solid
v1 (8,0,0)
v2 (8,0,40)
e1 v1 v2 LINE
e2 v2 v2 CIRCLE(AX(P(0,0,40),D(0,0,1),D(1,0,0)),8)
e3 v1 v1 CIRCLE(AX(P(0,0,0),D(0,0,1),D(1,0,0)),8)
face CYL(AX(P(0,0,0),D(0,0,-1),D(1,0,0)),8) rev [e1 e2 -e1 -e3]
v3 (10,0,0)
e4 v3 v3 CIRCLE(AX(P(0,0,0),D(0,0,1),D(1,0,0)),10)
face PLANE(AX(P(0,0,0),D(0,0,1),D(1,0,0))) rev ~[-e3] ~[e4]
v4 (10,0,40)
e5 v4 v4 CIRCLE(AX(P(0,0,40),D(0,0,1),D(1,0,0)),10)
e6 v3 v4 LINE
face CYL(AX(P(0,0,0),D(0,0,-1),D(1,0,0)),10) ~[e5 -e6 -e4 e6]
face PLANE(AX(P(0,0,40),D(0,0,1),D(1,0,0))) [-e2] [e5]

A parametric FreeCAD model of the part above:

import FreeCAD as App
import Part
import Sketcher
from FreeCAD import Vector

doc = App.newDocument("Part")
params = doc.addObject("Spreadsheet::Sheet", "Params")
for row, (alias, value) in enumerate([
    ("sketch1_diameter", "20 mm"),
    ("sketch1_diameter2", "16 mm"),
    ("pad1_length", "40 mm"),
], start=1):
    params.set(f"A{row}", alias)
    params.set(f"B{row}", "=" + value)
    params.setAlias(f"B{row}", alias)

body = doc.addObject("PartDesign::Body", "Body")

sketch1 = body.newObject("Sketcher::SketchObject", "Sketch")
sketch1.AttachmentSupport = (doc.getObject("XY_Plane"), [""])
sketch1.MapMode = "FlatFace"
sketch1.addGeometry(Part.Circle(Vector(0, 0, 0), Vector(0, 0, 1), 10), False)
sketch1.addGeometry(Part.Circle(Vector(0, 0, 0), Vector(0, 0, 1), 8), False)
sketch1.addConstraint(Sketcher.Constraint("Coincident", 0, 3, -1, 1))
sketch1.addConstraint(Sketcher.Constraint("Coincident", 1, 3, -1, 1))
sketch1.addConstraint(Sketcher.Constraint("Diameter", 0, 20.0))
sketch1.addConstraint(Sketcher.Constraint("Diameter", 1, 16.0))
sketch1.setExpression("Constraints[2]", "Params.sketch1_diameter")
sketch1.setExpression("Constraints[3]", "Params.sketch1_diameter2")
pad1 = body.newObject("PartDesign::Pad", "Pad")
pad1.Profile = sketch1
pad1.setExpression("Length", "Params.pad1_length")

doc.recompute()
